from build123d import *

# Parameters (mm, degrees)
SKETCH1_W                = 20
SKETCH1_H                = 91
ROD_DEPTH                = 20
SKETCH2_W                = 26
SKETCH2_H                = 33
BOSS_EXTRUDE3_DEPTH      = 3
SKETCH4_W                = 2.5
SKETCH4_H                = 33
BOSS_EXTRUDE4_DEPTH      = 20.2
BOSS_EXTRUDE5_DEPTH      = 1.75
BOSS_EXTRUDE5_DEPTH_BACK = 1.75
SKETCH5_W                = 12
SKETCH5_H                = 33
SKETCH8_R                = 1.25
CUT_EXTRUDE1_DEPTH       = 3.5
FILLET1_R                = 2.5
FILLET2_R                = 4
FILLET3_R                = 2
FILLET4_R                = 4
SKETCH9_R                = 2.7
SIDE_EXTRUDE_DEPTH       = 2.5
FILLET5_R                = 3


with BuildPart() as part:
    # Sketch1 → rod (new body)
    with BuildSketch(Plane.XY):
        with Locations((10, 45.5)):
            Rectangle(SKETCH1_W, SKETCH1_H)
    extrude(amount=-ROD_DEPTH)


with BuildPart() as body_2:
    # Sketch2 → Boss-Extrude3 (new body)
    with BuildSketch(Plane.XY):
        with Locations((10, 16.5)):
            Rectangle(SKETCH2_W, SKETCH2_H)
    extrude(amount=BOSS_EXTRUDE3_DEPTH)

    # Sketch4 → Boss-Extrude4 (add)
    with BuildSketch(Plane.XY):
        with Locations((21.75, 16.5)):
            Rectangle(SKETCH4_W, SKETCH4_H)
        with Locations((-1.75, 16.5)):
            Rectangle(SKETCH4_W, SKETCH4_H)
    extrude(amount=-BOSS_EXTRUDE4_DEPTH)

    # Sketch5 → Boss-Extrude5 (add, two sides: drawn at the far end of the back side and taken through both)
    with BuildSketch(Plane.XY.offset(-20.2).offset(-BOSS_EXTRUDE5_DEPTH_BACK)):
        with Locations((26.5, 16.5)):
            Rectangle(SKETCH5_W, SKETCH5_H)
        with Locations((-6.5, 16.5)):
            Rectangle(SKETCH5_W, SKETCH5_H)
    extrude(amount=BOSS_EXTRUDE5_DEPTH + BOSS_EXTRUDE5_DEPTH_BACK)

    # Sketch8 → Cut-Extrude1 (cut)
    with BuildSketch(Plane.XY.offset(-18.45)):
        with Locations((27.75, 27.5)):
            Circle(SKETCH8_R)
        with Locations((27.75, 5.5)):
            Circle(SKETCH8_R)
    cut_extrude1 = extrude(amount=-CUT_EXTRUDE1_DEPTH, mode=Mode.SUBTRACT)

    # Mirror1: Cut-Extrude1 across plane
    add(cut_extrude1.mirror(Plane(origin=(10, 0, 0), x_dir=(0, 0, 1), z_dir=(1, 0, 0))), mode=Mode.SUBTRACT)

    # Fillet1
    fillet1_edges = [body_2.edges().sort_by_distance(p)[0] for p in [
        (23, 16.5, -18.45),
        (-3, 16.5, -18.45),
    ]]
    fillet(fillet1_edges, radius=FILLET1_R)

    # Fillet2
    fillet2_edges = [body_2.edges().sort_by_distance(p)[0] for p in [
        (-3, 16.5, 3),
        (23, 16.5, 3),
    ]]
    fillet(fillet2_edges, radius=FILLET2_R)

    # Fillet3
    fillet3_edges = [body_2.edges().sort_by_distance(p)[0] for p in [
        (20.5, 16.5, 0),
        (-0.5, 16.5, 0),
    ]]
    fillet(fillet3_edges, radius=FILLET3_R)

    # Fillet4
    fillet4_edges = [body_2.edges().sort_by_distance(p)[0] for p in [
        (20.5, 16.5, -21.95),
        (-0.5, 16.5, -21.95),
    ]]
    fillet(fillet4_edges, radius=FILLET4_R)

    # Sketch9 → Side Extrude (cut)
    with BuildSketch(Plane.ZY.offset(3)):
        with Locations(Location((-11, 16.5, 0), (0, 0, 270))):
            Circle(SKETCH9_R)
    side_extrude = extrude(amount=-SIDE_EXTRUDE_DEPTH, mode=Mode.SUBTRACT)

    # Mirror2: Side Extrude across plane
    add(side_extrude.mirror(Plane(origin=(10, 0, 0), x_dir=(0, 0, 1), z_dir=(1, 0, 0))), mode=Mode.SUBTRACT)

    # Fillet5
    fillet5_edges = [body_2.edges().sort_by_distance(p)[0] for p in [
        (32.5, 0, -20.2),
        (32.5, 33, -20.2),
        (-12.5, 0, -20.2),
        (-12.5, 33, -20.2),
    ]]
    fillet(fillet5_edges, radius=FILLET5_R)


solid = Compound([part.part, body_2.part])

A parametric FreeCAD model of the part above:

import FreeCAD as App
import Part
import Sketcher
from FreeCAD import Vector


def edges_at(feature, points):
    """Names of the edges that pass closest to the given points."""
    edges = feature.Shape.Edges
    near = lambda p: min(range(len(edges)), key=lambda i: edges[i].distToShape(Part.Vertex(*p))[0])
    return sorted({f"Edge{near(p) + 1}" for p in points})

doc = App.newDocument("Part")
params = doc.addObject("Spreadsheet::Sheet", "Params")
for row, (alias, value) in enumerate([
    ("sketch1_width", "20 mm"),
    ("sketch1_height", "91 mm"),
    ("pad1_length", "20 mm"),
    ("sketch2_width", "26 mm"),
    ("sketch2_height", "33 mm"),
    ("pad2_length", "3 mm"),
    ("sketch3_height", "33 mm"),
    ("sketch3_width", "2.5 mm"),
    ("pad3_length", "20.2 mm"),
    ("sketch4_width", "12 mm"),
    ("sketch4_height", "33 mm"),
    ("pad4_length", "1.75 mm"),
    ("pad4_length2", "1.75 mm"),
    ("sketch5_diameter", "2.5 mm"),
    ("pocket1_length", "3.5 mm"),
    ("fillet_radius", "2.5 mm"),
    ("fillet2_radius", "4 mm"),
    ("fillet3_radius", "2 mm"),
    ("fillet4_radius", "4 mm"),
    ("sketch6_diameter", "5.4 mm"),
    ("pocket2_length", "2.5 mm"),
    ("fillet5_radius", "3 mm"),
], start=1):
    params.set(f"A{row}", alias)
    params.set(f"B{row}", "=" + value)
    params.setAlias(f"B{row}", alias)

body = doc.addObject("PartDesign::Body", "Body")

# Sketch on XY plane
sketch1 = body.newObject("Sketcher::SketchObject", "Sketch")
sketch1.AttachmentSupport = (doc.getObject("XY_Plane"), [""])
sketch1.MapMode = "FlatFace"
sketch1.addGeometry([
    Part.LineSegment(Vector(0, 91, 0), Vector(0, 0, 0)),
    Part.LineSegment(Vector(0, 0, 0), Vector(20, 0, 0)),
    Part.LineSegment(Vector(20, 0, 0), Vector(20, 91, 0)),
    Part.LineSegment(Vector(20, 91, 0), Vector(0, 91, 0)),
], False)
sketch1.addConstraint([
    Sketcher.Constraint("Coincident", 0, 2, 1, 1),
    Sketcher.Constraint("Coincident", 1, 2, 2, 1),
    Sketcher.Constraint("Coincident", 2, 2, 3, 1),
    Sketcher.Constraint("Coincident", 3, 2, 0, 1),
    Sketcher.Constraint("Vertical", 0),
    Sketcher.Constraint("Horizontal", 1),
    Sketcher.Constraint("Vertical", 2),
    Sketcher.Constraint("Horizontal", 3),
    Sketcher.Constraint("Coincident", 0, 2, -1, 1),
    Sketcher.Constraint("DistanceX", 1, 1, 1, 2, 20.0),
    Sketcher.Constraint("DistanceY", 0, 2, 0, 1, 91.0),
])
sketch1.setExpression("Constraints[9]", "Params.sketch1_width")
sketch1.setExpression("Constraints[10]", "Params.sketch1_height")
pad1 = body.newObject("PartDesign::Pad", "Pad")
pad1.Profile = sketch1
pad1.setExpression("Length", "Params.pad1_length")
pad1.Reversed = True
body2 = doc.addObject("PartDesign::Body", "Body001")

# Sketch on XY plane
sketch2 = body2.newObject("Sketcher::SketchObject", "Sketch001")
sketch2.AttachmentSupport = (doc.getObject("XY_Plane001"), [""])
sketch2.MapMode = "FlatFace"
sketch2.addGeometry([
    Part.LineSegment(Vector(-3, 33, 0), Vector(-3, 0, 0)),
    Part.LineSegment(Vector(-3, 0, 0), Vector(23, 0, 0)),
    Part.LineSegment(Vector(23, 0, 0), Vector(23, 33, 0)),
    Part.LineSegment(Vector(23, 33, 0), Vector(-3, 33, 0)),
], False)
sketch2.addConstraint([
    Sketcher.Constraint("Coincident", 0, 2, 1, 1),
    Sketcher.Constraint("Coincident", 1, 2, 2, 1),
    Sketcher.Constraint("Coincident", 2, 2, 3, 1),
    Sketcher.Constraint("Coincident", 3, 2, 0, 1),
    Sketcher.Constraint("Vertical", 0),
    Sketcher.Constraint("Horizontal", 1),
    Sketcher.Constraint("Vertical", 2),
    Sketcher.Constraint("Horizontal", 3),
    Sketcher.Constraint("PointOnObject", 0, 2, -1),
    Sketcher.Constraint("DistanceX", 1, 1, 1, 2, 26.0),
    Sketcher.Constraint("DistanceY", 0, 2, 0, 1, 33.0),
    Sketcher.Constraint("DistanceX", 0, 2, -1, 1, 3.0),
])
sketch2.setExpression("Constraints[9]", "Params.sketch2_width")
sketch2.setExpression("Constraints[10]", "Params.sketch2_height")
pad2 = body2.newObject("PartDesign::Pad", "Pad001")
pad2.Profile = sketch2
pad2.setExpression("Length", "Params.pad2_length")

# Sketch on XY plane
sketch3 = body2.newObject("Sketcher::SketchObject", "Sketch002")
sketch3.AttachmentSupport = (doc.getObject("XY_Plane001"), [""])
sketch3.MapMode = "FlatFace"
sketch3.addGeometry([
    Part.LineSegment(Vector(20.5, 33, 0), Vector(20.5, 0, 0)),  # 0
    Part.LineSegment(Vector(20.5, 0, 0), Vector(23, 0, 0)),  # 1
    Part.LineSegment(Vector(23, 0, 0), Vector(23, 33, 0)),  # 2
    Part.LineSegment(Vector(23, 33, 0), Vector(20.5, 33, 0)),  # 3
    Part.LineSegment(Vector(-3, 33, 0), Vector(-3, 0, 0)),  # 4
    Part.LineSegment(Vector(-3, 0, 0), Vector(-0.5, 0, 0)),  # 5
    Part.LineSegment(Vector(-0.5, 0, 0), Vector(-0.5, 33, 0)),  # 6
    Part.LineSegment(Vector(-0.5, 33, 0), Vector(-3, 33, 0)),  # 7
], False)
sketch3.addConstraint([
    Sketcher.Constraint("Coincident", 0, 2, 1, 1),
    Sketcher.Constraint("Coincident", 1, 2, 2, 1),
    Sketcher.Constraint("Coincident", 2, 2, 3, 1),
    Sketcher.Constraint("Coincident", 3, 2, 0, 1),
    Sketcher.Constraint("Coincident", 4, 2, 5, 1),
    Sketcher.Constraint("Coincident", 5, 2, 6, 1),
    Sketcher.Constraint("Coincident", 6, 2, 7, 1),
    Sketcher.Constraint("Coincident", 7, 2, 4, 1),
    Sketcher.Constraint("Vertical", 0),
    Sketcher.Constraint("Horizontal", 1),
    Sketcher.Constraint("Vertical", 2),
    Sketcher.Constraint("Horizontal", 3),
    Sketcher.Constraint("Vertical", 4),
    Sketcher.Constraint("Horizontal", 5),
    Sketcher.Constraint("Vertical", 6),
    Sketcher.Constraint("Horizontal", 7),
    Sketcher.Constraint("PointOnObject", 0, 2, -1),
    Sketcher.Constraint("PointOnObject", 4, 2, -1),
    Sketcher.Constraint("Horizontal", 3, 2, 6, 2),
    Sketcher.Constraint("Equal", 3, 5),
    Sketcher.Constraint("DistanceY", 0, 2, 0, 1, 33.0),
    Sketcher.Constraint("DistanceX", 1, 1, 1, 2, 2.5),
    Sketcher.Constraint("DistanceX", -1, 1, 1, 2, 23.0),
    Sketcher.Constraint("DistanceX", 4, 2, -1, 1, 3.0),
])
sketch3.setExpression("Constraints[20]", "Params.sketch3_height")
sketch3.setExpression("Constraints[21]", "Params.sketch3_width")
pad3 = body2.newObject("PartDesign::Pad", "Pad002")
pad3.Profile = sketch3
pad3.setExpression("Length", "Params.pad3_length")
pad3.Reversed = True

# Sketch on XY plane
sketch4 = body2.newObject("Sketcher::SketchObject", "Sketch003")
sketch4.AttachmentSupport = (doc.getObject("XY_Plane001"), [""])
sketch4.MapMode = "FlatFace"
sketch4.AttachmentOffset = App.Placement(Vector(0, 0, -20.2), App.Rotation())
sketch4.addGeometry([
    Part.LineSegment(Vector(20, 33, 0), Vector(20, 0, 0)),  # 0
    Part.LineSegment(Vector(20, 0, 0), Vector(32, 0, 0)),  # 1
    Part.LineSegment(Vector(32, 0, 0), Vector(32, 33, 0)),  # 2
    Part.LineSegment(Vector(32, 33, 0), Vector(20, 33, 0)),  # 3
    Part.LineSegment(Vector(-12, 33, 0), Vector(-12, 0, 0)),  # 4
    Part.LineSegment(Vector(-12, 0, 0), Vector(0, 0, 0)),  # 5
    Part.LineSegment(Vector(0, 0, 0), Vector(0, 33, 0)),  # 6
    Part.LineSegment(Vector(0, 33, 0), Vector(-12, 33, 0)),  # 7
], False)
sketch4.addConstraint([
    Sketcher.Constraint("Coincident", 0, 2, 1, 1),
    Sketcher.Constraint("Coincident", 1, 2, 2, 1),
    Sketcher.Constraint("Coincident", 2, 2, 3, 1),
    Sketcher.Constraint("Coincident", 3, 2, 0, 1),
    Sketcher.Constraint("Coincident", 4, 2, 5, 1),
    Sketcher.Constraint("Coincident", 5, 2, 6, 1),
    Sketcher.Constraint("Coincident", 6, 2, 7, 1),
    Sketcher.Constraint("Coincident", 7, 2, 4, 1),
    Sketcher.Constraint("Vertical", 0),
    Sketcher.Constraint("Horizontal", 1),
    Sketcher.Constraint("Vertical", 2),
    Sketcher.Constraint("Horizontal", 3),
    Sketcher.Constraint("Vertical", 4),
    Sketcher.Constraint("Horizontal", 5),
    Sketcher.Constraint("Vertical", 6),
    Sketcher.Constraint("Horizontal", 7),
    Sketcher.Constraint("PointOnObject", 0, 2, -1),
    Sketcher.Constraint("PointOnObject", 4, 2, -1),
    Sketcher.Constraint("Horizontal", 3, 2, 6, 2),
    Sketcher.Constraint("Equal", 3, 5),
    Sketcher.Constraint("DistanceX", 1, 1, 1, 2, 12.0),
    Sketcher.Constraint("DistanceY", 0, 2, 0, 1, 33.0),
    Sketcher.Constraint("DistanceX", 4, 2, 0, 2, 33.0),
    Sketcher.Constraint("DistanceX", -1, 1, 0, 2, 20.5),
])
sketch4.setExpression("Constraints[20]", "Params.sketch4_width")
sketch4.setExpression("Constraints[21]", "Params.sketch4_height")
pad4 = body2.newObject("PartDesign::Pad", "Pad003")
pad4.Profile = sketch4
pad4.Type = "TwoLengths"
pad4.setExpression("Length", "Params.pad4_length")
pad4.setExpression("Length2", "Params.pad4_length2")

# Sketch on XY plane
sketch5 = body2.newObject("Sketcher::SketchObject", "Sketch004")
sketch5.AttachmentSupport = (doc.getObject("XY_Plane001"), [""])
sketch5.MapMode = "FlatFace"
sketch5.AttachmentOffset = App.Placement(Vector(0, 0, -18.45), App.Rotation())
sketch5.addGeometry([
    Part.Circle(Vector(27.8, 27.5, 0), Vector(0, 0, 1), 1.2),
    Part.Circle(Vector(27.8, 5.5, 0), Vector(0, 0, 1), 1.2),
], False)
sketch5.addConstraint([
    Sketcher.Constraint("Equal", 0, 1),
    Sketcher.Constraint("Vertical", 0, 3, 1, 3),
    Sketcher.Constraint("Diameter", 0, 2.5),
    Sketcher.Constraint("DistanceY", 1, 3, 0, 3, 22.0),
    Sketcher.Constraint("DistanceY", -1, 1, 0, 3, 27.5),
    Sketcher.Constraint("DistanceX", -1, 1, 0, 3, 27.75),
])
sketch5.setExpression("Constraints[2]", "Params.sketch5_diameter")
pocket1 = body2.newObject("PartDesign::Pocket", "Pocket")
pocket1.Profile = sketch5
pocket1.setExpression("Length", "Params.pocket1_length")
doc.recompute()

datumplane = body2.newObject("PartDesign::Plane", "DatumPlane")
datumplane.AttachmentSupport = (doc.getObject("YZ_Plane001"), [""])
datumplane.MapMode = "FlatFace"
datumplane.AttachmentOffset = App.Placement(Vector(0, 0, 10), App.Rotation())
mirrored = body2.newObject("PartDesign::Mirrored", "Mirrored")
mirrored.Originals = [pocket1]
mirrored.MirrorPlane = (datumplane, [""])
body2.Tip = mirrored
doc.recompute()

fillet = body2.newObject("PartDesign::Fillet", "Fillet")
fillet.Base = (mirrored, edges_at(mirrored, [(23, 16.5, -18.45), (-3, 16.5, -18.45)]))
fillet.setExpression("Radius", "Params.fillet_radius")
doc.recompute()

fillet2 = body2.newObject("PartDesign::Fillet", "Fillet001")
fillet2.Base = (fillet, edges_at(fillet, [(-3, 16.5, 3), (23, 16.5, 3)]))
fillet2.setExpression("Radius", "Params.fillet2_radius")
doc.recompute()

fillet3 = body2.newObject("PartDesign::Fillet", "Fillet002")
fillet3.Base = (fillet2, edges_at(fillet2, [(20.5, 16.5, 0), (-0.5, 16.5, 0)]))
fillet3.setExpression("Radius", "Params.fillet3_radius")
doc.recompute()

fillet4 = body2.newObject("PartDesign::Fillet", "Fillet003")
fillet4.Base = (fillet3, edges_at(fillet3, [(20.5, 16.5, -21.95), (-0.5, 16.5, -21.95)]))
fillet4.setExpression("Radius", "Params.fillet4_radius")

# Sketch on YZ plane
sketch6 = body2.newObject("Sketcher::SketchObject", "Sketch005")
sketch6.AttachmentSupport = (doc.getObject("YZ_Plane001"), [""])
sketch6.MapMode = "FlatFace"
sketch6.AttachmentOffset = App.Placement(Vector(0, 0, -3), App.Rotation())
sketch6.addGeometry(Part.Circle(Vector(16.5, -11, 0), Vector(0, 0, 1), 2.7), False)
sketch6.addConstraint([
    Sketcher.Constraint("Diameter", 0, 5.4),
    Sketcher.Constraint("DistanceY", 0, 3, -1, 1, 11.0),
    Sketcher.Constraint("DistanceX", -1, 1, 0, 3, 16.5),
])
sketch6.setExpression("Constraints[0]", "Params.sketch6_diameter")
pocket2 = body2.newObject("PartDesign::Pocket", "Pocket001")
pocket2.Profile = sketch6
pocket2.setExpression("Length", "Params.pocket2_length")
pocket2.Reversed = True
doc.recompute()

datumplane2 = body2.newObject("PartDesign::Plane", "DatumPlane001")
datumplane2.AttachmentSupport = (doc.getObject("YZ_Plane001"), [""])
datumplane2.MapMode = "FlatFace"
datumplane2.AttachmentOffset = App.Placement(Vector(0, 0, 10), App.Rotation())
mirrored2 = body2.newObject("PartDesign::Mirrored", "Mirrored001")
mirrored2.Originals = [pocket2]
mirrored2.MirrorPlane = (datumplane2, [""])
body2.Tip = mirrored2
doc.recompute()

fillet5 = body2.newObject("PartDesign::Fillet", "Fillet004")
fillet5.Base = (mirrored2, edges_at(mirrored2, [
    (32.5, 0, -20.2),
    (32.5, 33, -20.2),
    (-12.5, 0, -20.2),
    (-12.5, 33, -20.2),
]))
fillet5.setExpression("Radius", "Params.fillet5_radius")

doc.recompute()
